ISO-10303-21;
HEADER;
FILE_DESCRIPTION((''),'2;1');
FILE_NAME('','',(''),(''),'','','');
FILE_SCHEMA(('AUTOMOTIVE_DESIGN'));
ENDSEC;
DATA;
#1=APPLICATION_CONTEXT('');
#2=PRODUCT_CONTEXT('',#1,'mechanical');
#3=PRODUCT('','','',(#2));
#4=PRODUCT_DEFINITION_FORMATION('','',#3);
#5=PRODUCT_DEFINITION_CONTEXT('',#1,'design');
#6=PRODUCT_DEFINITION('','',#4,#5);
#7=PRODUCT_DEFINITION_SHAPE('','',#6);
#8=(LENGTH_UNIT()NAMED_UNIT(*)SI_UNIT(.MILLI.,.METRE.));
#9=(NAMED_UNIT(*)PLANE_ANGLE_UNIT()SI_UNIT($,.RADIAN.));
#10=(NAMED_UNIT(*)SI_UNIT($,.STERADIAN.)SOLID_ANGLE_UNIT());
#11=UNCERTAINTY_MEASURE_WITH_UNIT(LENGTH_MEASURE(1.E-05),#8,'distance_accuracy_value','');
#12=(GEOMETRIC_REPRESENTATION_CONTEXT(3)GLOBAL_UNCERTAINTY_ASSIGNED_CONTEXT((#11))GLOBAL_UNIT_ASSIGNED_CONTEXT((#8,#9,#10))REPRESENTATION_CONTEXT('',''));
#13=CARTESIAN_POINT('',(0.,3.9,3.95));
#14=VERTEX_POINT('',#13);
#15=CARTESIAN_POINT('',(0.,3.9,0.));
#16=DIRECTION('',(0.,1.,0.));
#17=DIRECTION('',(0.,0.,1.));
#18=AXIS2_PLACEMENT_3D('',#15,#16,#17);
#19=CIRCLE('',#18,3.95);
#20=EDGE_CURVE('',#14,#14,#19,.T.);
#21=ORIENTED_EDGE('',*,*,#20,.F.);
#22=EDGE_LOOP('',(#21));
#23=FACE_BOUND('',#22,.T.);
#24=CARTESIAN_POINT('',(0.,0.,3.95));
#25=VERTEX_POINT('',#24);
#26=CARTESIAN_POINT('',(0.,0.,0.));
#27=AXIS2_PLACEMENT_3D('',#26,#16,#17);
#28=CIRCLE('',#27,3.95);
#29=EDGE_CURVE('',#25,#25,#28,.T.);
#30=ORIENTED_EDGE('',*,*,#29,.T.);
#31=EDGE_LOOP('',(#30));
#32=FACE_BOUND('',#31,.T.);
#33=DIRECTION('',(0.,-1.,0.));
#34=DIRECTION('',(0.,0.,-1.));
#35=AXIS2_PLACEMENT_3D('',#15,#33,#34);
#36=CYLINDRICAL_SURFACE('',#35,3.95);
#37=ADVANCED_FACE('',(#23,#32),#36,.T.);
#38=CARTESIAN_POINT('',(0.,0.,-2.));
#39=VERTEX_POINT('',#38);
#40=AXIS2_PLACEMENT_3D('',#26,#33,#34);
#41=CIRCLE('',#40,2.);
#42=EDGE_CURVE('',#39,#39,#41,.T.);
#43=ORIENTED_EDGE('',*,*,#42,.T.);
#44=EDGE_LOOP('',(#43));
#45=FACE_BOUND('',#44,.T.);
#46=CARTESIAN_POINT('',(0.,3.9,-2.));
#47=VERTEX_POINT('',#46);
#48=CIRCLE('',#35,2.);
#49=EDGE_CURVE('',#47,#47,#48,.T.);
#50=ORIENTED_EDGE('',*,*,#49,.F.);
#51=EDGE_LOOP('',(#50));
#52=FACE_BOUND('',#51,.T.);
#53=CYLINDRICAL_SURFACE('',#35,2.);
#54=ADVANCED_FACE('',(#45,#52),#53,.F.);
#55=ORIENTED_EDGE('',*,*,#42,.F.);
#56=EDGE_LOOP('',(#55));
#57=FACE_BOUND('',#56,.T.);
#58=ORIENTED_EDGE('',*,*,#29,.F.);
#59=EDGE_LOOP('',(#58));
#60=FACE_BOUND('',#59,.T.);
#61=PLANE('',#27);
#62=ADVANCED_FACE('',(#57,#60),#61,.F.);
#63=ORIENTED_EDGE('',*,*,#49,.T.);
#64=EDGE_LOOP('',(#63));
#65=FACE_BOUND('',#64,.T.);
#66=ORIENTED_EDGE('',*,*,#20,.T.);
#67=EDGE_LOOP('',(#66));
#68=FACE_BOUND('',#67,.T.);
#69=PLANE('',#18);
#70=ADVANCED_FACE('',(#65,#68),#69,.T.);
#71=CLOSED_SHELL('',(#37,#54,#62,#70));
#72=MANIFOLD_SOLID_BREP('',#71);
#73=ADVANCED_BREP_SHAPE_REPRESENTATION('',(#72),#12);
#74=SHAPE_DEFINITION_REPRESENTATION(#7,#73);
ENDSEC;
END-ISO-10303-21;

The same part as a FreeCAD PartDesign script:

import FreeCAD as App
import Part
import Sketcher
from FreeCAD import Vector
Q = App.Units.Quantity

doc = App.newDocument("Part")
body = doc.addObject("PartDesign::Body", "Body")

# Sketch on XZ plane
sketch1 = body.newObject("Sketcher::SketchObject", "Sketch")
sketch1.AttachmentSupport = (doc.getObject("XZ_Plane"), [""])
sketch1.MapMode = "FlatFace"
sketch1.addGeometry(Part.Circle(Vector(0, 0, 0), Vector(0, 0, 1), 3.95), False)
sketch1.addConstraint([
    Sketcher.Constraint("Coincident", 0, 3, -1, 1),
    Sketcher.Constraint("Diameter", 0, Q("7.9 mm")),
])
pad1 = body.newObject("PartDesign::Pad", "Pad")
pad1.Profile = sketch1
pad1.Length = 3.9
pad1.Reversed = True

# Sketch on XZ plane
sketch2 = body.newObject("Sketcher::SketchObject", "Sketch001")
sketch2.AttachmentSupport = (doc.getObject("XZ_Plane"), [""])
sketch2.MapMode = "FlatFace"
sketch2.addGeometry(Part.Circle(Vector(0, 0, 0), Vector(0, 0, 1), 2), False)
sketch2.addConstraint([
    Sketcher.Constraint("Coincident", 0, 3, -1, 1),
    Sketcher.Constraint("Diameter", 0, Q("4 mm")),
])
pocket1 = body.newObject("PartDesign::Pocket", "Pocket")
pocket1.Profile = sketch2
pocket1.Length = 3.9

doc.recompute()
